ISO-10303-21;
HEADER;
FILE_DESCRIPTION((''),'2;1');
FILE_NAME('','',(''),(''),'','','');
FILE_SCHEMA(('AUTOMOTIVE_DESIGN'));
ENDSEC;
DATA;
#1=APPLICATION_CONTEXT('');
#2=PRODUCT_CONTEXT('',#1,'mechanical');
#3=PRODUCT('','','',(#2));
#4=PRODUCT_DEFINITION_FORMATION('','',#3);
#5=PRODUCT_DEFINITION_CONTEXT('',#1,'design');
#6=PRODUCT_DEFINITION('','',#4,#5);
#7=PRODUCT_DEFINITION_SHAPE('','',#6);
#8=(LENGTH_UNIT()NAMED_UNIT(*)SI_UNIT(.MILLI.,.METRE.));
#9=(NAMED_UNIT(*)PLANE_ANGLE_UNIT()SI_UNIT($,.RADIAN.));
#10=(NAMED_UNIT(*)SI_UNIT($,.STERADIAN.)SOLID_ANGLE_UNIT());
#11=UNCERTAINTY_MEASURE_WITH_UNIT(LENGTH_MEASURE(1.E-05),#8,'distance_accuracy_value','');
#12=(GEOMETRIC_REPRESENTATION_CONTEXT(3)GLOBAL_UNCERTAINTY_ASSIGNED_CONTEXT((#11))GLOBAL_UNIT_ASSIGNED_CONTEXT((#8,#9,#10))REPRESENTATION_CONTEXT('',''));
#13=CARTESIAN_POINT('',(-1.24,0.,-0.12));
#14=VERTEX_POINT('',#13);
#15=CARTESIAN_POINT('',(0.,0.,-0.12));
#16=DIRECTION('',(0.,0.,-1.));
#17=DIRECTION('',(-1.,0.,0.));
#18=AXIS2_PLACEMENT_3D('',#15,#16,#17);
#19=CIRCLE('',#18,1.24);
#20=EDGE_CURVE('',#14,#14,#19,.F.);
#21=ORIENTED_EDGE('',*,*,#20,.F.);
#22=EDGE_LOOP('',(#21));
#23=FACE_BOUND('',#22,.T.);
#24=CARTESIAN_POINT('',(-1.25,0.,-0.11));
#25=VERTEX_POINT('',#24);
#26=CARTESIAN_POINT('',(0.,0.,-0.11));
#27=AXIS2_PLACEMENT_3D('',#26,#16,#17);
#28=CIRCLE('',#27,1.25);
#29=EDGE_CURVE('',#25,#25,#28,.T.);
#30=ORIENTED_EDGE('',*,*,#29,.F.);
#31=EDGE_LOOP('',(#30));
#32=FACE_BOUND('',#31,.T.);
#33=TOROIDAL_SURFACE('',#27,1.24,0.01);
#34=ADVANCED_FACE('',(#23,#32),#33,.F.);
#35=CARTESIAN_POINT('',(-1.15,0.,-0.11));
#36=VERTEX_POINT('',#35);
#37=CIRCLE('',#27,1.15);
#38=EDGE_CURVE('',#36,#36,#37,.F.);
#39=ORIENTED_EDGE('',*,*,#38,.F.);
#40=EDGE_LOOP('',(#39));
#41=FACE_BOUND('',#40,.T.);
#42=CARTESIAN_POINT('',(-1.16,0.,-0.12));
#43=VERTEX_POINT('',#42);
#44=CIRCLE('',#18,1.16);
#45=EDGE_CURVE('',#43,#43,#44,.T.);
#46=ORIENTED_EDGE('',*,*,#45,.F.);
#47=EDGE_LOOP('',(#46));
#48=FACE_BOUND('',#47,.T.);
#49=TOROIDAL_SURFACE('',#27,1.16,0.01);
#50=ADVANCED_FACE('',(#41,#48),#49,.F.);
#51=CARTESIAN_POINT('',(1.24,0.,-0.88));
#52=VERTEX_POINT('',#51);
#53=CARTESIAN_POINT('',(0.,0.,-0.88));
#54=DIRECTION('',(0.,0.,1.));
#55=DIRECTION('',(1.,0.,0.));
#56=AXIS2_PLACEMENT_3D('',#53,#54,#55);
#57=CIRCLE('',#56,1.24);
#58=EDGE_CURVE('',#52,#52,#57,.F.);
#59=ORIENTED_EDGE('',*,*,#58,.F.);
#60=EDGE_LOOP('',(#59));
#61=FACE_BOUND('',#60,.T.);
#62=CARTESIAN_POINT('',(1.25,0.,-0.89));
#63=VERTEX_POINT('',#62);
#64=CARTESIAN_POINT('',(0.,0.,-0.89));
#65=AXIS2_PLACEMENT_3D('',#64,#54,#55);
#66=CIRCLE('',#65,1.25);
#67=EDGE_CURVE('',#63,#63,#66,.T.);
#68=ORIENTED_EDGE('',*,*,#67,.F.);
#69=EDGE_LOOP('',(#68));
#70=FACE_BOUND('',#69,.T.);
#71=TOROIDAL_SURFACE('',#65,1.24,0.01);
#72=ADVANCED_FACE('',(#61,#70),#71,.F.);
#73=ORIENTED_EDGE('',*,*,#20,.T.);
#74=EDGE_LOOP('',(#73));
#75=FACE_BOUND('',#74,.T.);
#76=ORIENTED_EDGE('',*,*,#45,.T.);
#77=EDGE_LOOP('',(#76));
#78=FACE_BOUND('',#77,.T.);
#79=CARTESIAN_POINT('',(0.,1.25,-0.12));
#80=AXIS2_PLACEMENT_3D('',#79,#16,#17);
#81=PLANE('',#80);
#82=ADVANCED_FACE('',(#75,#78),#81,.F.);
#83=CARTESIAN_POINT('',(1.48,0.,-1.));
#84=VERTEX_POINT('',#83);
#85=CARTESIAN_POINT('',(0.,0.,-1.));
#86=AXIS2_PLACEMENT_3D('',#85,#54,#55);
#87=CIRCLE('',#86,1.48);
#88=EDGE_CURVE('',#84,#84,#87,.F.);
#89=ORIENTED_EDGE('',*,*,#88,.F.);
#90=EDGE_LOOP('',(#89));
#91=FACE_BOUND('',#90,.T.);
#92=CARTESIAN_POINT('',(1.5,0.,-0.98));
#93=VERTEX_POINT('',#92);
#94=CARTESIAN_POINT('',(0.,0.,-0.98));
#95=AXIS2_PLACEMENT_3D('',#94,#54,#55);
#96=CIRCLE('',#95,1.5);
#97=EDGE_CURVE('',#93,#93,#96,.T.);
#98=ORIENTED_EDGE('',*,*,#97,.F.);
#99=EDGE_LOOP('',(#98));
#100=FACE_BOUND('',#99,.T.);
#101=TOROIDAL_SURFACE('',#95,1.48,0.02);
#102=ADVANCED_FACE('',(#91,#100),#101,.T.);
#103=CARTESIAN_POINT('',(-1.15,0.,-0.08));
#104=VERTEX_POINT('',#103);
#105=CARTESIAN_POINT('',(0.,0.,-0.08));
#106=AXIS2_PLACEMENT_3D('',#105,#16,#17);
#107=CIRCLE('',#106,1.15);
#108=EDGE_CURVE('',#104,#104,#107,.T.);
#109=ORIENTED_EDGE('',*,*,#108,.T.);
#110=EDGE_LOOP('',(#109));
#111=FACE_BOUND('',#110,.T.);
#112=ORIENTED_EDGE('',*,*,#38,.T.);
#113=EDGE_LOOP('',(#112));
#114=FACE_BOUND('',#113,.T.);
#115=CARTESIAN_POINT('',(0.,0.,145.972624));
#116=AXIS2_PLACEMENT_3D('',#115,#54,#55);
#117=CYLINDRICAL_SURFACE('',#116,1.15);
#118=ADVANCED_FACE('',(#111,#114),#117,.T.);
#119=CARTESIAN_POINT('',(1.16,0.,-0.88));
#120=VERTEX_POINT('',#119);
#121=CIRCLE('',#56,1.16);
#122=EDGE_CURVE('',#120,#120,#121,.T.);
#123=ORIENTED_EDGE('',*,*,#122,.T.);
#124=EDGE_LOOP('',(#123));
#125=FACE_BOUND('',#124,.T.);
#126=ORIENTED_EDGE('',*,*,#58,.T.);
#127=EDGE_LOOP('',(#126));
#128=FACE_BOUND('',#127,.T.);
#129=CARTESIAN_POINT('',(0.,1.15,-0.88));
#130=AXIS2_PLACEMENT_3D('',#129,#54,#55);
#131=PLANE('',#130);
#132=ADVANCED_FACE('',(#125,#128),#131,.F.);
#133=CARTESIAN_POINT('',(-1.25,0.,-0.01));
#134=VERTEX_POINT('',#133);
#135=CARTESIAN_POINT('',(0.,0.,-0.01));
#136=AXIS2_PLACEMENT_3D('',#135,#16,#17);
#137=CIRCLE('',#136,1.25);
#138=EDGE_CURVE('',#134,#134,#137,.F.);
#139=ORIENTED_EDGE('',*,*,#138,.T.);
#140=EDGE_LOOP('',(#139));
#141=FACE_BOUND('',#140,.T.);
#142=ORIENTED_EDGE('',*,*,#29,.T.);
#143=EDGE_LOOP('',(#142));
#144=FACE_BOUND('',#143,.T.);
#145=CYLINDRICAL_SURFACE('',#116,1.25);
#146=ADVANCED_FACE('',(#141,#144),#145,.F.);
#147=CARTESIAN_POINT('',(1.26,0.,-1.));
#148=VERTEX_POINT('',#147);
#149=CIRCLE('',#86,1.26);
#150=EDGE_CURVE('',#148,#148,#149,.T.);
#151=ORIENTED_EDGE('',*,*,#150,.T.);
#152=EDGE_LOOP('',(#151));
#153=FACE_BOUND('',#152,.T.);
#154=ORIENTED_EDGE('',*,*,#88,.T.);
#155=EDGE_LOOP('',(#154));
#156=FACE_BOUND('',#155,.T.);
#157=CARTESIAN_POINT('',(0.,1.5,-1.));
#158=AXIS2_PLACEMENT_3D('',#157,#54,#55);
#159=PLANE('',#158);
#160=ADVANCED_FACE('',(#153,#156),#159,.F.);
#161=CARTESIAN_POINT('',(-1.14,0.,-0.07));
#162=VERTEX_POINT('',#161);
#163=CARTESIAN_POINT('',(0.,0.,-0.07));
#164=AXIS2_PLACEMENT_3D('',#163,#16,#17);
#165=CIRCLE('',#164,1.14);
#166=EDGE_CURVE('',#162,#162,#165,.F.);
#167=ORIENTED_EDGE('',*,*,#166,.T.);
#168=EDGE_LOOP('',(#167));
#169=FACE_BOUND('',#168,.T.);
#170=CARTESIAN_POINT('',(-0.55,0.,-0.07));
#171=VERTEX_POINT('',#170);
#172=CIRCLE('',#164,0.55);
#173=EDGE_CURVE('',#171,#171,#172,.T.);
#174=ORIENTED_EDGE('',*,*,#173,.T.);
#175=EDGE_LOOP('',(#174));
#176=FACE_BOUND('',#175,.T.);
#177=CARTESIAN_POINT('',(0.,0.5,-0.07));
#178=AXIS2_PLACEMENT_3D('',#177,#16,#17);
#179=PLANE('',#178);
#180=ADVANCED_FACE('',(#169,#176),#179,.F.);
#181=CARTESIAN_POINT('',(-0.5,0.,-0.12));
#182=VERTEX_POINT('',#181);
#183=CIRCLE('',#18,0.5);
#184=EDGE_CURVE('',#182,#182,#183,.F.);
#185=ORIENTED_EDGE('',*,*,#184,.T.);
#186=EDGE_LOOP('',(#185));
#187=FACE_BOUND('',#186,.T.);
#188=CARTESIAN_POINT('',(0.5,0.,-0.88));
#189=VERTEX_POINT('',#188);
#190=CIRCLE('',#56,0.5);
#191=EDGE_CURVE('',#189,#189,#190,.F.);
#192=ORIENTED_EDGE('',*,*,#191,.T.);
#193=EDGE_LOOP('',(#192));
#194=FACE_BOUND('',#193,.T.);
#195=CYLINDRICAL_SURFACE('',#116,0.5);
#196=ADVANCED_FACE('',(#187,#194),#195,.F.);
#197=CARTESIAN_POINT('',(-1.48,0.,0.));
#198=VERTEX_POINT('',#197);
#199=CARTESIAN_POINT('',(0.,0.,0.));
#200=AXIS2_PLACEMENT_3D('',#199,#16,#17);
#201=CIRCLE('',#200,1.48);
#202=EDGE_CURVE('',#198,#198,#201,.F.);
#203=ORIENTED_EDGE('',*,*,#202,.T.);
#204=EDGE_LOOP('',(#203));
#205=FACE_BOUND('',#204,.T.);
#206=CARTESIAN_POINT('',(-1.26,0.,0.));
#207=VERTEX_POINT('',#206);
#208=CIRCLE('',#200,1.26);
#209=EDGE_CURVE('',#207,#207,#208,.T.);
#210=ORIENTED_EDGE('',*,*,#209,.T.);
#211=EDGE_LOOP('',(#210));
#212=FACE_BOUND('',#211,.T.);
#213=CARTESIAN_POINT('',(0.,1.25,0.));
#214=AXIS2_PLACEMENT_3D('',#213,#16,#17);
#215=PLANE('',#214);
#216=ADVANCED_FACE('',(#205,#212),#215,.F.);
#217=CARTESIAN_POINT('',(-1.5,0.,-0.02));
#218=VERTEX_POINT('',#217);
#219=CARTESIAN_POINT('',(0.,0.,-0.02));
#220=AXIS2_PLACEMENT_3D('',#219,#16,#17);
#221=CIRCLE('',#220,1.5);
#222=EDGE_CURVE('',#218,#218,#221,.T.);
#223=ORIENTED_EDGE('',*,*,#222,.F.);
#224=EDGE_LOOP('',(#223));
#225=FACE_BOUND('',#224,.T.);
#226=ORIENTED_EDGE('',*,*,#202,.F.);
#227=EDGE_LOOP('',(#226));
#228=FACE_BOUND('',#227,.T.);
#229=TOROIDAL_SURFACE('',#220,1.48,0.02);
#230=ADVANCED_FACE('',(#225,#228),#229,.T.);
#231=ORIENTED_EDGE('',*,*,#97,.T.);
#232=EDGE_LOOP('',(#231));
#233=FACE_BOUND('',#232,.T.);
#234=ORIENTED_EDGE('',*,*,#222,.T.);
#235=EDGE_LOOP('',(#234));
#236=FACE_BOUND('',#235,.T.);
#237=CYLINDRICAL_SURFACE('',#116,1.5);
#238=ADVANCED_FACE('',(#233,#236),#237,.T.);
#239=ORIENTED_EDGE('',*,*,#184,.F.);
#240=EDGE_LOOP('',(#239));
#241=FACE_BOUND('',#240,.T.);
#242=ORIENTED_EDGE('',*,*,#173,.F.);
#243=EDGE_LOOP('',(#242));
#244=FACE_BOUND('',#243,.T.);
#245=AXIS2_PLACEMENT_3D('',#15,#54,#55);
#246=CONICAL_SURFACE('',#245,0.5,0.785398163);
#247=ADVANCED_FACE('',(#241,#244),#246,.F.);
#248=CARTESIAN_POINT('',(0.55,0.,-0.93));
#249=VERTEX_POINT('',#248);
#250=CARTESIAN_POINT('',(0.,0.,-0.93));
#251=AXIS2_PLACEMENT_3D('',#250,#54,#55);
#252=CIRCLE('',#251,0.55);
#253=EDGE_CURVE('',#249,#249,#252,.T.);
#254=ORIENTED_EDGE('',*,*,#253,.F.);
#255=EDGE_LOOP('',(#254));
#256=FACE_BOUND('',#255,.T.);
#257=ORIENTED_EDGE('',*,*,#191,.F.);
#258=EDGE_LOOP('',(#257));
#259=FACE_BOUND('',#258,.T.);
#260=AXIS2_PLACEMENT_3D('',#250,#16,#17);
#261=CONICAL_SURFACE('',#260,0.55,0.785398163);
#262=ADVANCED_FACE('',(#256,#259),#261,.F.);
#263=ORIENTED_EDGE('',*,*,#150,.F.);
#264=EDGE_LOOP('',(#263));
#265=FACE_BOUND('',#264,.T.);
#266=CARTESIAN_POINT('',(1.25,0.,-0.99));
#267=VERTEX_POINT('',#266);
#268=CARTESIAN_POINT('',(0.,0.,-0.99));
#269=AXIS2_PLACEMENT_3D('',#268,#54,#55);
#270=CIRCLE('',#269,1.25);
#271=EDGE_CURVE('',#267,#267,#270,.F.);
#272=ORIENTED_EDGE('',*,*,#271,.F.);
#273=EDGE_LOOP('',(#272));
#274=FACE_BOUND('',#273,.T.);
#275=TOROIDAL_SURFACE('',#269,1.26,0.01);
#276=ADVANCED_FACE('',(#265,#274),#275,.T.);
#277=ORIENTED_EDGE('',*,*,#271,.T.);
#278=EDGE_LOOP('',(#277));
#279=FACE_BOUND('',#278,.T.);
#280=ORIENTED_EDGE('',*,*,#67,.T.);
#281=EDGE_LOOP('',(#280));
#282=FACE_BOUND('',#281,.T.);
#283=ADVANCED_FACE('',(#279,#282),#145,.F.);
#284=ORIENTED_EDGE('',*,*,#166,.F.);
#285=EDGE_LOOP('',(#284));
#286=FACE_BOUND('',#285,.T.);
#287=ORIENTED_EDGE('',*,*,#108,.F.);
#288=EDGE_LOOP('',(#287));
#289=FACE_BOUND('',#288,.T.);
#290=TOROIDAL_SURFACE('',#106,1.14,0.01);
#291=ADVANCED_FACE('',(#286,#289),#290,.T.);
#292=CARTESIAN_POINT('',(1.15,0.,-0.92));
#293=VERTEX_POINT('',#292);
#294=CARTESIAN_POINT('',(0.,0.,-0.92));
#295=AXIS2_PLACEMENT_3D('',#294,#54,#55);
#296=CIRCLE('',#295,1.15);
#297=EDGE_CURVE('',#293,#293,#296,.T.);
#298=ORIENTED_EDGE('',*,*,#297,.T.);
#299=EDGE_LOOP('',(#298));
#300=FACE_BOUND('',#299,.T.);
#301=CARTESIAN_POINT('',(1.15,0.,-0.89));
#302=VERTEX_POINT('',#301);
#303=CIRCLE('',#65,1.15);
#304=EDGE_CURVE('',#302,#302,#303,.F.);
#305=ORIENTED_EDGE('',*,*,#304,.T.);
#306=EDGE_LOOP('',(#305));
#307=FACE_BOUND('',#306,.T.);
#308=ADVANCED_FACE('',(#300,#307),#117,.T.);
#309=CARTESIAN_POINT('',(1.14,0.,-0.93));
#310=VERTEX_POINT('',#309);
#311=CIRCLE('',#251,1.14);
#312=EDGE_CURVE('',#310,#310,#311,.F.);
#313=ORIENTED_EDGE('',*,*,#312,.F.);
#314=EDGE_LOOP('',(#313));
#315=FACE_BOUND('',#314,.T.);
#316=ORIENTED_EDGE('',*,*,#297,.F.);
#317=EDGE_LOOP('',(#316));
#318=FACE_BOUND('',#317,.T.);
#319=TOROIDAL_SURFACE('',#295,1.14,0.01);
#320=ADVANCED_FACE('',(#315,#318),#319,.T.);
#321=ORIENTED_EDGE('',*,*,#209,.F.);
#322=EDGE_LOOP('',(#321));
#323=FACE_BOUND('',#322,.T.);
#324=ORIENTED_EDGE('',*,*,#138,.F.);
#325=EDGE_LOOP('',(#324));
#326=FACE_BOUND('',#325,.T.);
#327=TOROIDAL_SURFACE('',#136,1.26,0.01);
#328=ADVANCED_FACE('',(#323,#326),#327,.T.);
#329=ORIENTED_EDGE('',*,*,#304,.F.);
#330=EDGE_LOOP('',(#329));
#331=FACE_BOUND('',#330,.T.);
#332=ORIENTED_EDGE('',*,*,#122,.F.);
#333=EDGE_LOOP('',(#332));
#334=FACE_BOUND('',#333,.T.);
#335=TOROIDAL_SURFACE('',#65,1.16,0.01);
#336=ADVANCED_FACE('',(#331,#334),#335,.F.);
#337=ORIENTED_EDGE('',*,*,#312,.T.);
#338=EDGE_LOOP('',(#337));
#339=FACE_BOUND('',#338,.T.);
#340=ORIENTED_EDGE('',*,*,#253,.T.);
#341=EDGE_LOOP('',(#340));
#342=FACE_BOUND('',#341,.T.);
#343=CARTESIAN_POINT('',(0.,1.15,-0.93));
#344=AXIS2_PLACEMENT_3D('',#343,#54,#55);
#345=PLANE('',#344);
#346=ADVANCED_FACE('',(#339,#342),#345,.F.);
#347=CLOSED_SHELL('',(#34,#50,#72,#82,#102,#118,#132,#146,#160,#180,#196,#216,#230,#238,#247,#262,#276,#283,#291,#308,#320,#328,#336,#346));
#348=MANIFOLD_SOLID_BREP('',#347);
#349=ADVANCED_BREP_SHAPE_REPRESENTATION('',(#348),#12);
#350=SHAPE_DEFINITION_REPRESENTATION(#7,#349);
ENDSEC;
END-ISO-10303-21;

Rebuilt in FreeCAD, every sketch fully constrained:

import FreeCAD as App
import Part
import Sketcher
from FreeCAD import Vector


def edges_at(feature, points):
    """Names of the edges that pass closest to the given points."""
    edges = feature.Shape.Edges
    near = lambda p: min(range(len(edges)), key=lambda i: edges[i].distToShape(Part.Vertex(*p))[0])
    return sorted({f"Edge{near(p) + 1}" for p in points})

doc = App.newDocument("Part")
body = doc.addObject("PartDesign::Body", "Body")

# Sketch on YZ plane
sketch1 = doc.addObject("Sketcher::SketchObject", "Sketch")
body.addObject(sketch1)
sketch1.AttachmentSupport = (doc.YZ_Plane, [""])
sketch1.MapMode = "FlatFace"
sketch1.addGeometry(Part.LineSegment(Vector(1.15, -0.07, 0), Vector(0.5, -0.07, 0)), False)
sketch1.addGeometry(Part.LineSegment(Vector(0.5, -0.07, 0), Vector(0.5, -0.93, 0)), False)
sketch1.addGeometry(Part.LineSegment(Vector(0.5, -0.93, 0), Vector(1.15, -0.93, 0)), False)
sketch1.addGeometry(Part.LineSegment(Vector(1.15, -0.93, 0), Vector(1.15, -0.88, 0)), False)
sketch1.addGeometry(Part.LineSegment(Vector(1.15, -0.88, 0), Vector(1.25, -0.88, 0)), False)
sketch1.addGeometry(Part.LineSegment(Vector(1.25, -0.88, 0), Vector(1.25, -1, 0)), False)
sketch1.addGeometry(Part.LineSegment(Vector(1.25, -1, 0), Vector(1.5, -1, 0)), False)
sketch1.addGeometry(Part.LineSegment(Vector(1.5, -1, 0), Vector(1.5, 0, 0)), False)
sketch1.addGeometry(Part.LineSegment(Vector(1.5, 0, 0), Vector(1.25, 0, 0)), False)
sketch1.addGeometry(Part.LineSegment(Vector(1.25, 0, 0), Vector(1.25, -0.12, 0)), False)
sketch1.addGeometry(Part.LineSegment(Vector(1.25, -0.12, 0), Vector(1.15, -0.12, 0)), False)
sketch1.addGeometry(Part.LineSegment(Vector(1.15, -0.12, 0), Vector(1.15, -0.07, 0)), False)
sketch1.addConstraint(Sketcher.Constraint("Coincident", 0, 2, 1, 1))
sketch1.addConstraint(Sketcher.Constraint("Coincident", 1, 2, 2, 1))
sketch1.addConstraint(Sketcher.Constraint("Coincident", 2, 2, 3, 1))
sketch1.addConstraint(Sketcher.Constraint("Coincident", 3, 2, 4, 1))
sketch1.addConstraint(Sketcher.Constraint("Coincident", 4, 2, 5, 1))
sketch1.addConstraint(Sketcher.Constraint("Coincident", 5, 2, 6, 1))
sketch1.addConstraint(Sketcher.Constraint("Coincident", 6, 2, 7, 1))
sketch1.addConstraint(Sketcher.Constraint("Coincident", 7, 2, 8, 1))
sketch1.addConstraint(Sketcher.Constraint("Coincident", 8, 2, 9, 1))
sketch1.addConstraint(Sketcher.Constraint("Coincident", 9, 2, 10, 1))
sketch1.addConstraint(Sketcher.Constraint("Coincident", 10, 2, 11, 1))
sketch1.addConstraint(Sketcher.Constraint("Coincident", 11, 2, 0, 1))
sketch1.addConstraint(Sketcher.Constraint("Horizontal", 0))
sketch1.addConstraint(Sketcher.Constraint("Vertical", 1))
sketch1.addConstraint(Sketcher.Constraint("Horizontal", 2))
sketch1.addConstraint(Sketcher.Constraint("Vertical", 3))
sketch1.addConstraint(Sketcher.Constraint("Horizontal", 4))
sketch1.addConstraint(Sketcher.Constraint("Vertical", 5))
sketch1.addConstraint(Sketcher.Constraint("Horizontal", 6))
sketch1.addConstraint(Sketcher.Constraint("Vertical", 7))
sketch1.addConstraint(Sketcher.Constraint("Horizontal", 8))
sketch1.addConstraint(Sketcher.Constraint("Vertical", 9))
sketch1.addConstraint(Sketcher.Constraint("Horizontal", 10))
sketch1.addConstraint(Sketcher.Constraint("Vertical", 11))
sketch1.addConstraint(Sketcher.Constraint("PointOnObject", 7, 2, -1))
sketch1.addConstraint(Sketcher.Constraint("Vertical", 5, 2, 8, 2))
sketch1.addConstraint(Sketcher.Constraint("Vertical", 3, 2, 10, 2))
sketch1.addConstraint(Sketcher.Constraint("Equal", 5, 9))
sketch1.addConstraint(Sketcher.Constraint("Equal", 3, 11))
sketch1.addConstraint(Sketcher.Constraint("DistanceY", 7, 1, 7, 2, 1.0))
sketch1.addConstraint(Sketcher.Constraint("DistanceX", 4, 1, 4, 2, 0.1))
sketch1.addConstraint(Sketcher.Constraint("DistanceX", 1, 2, 6, 2, 1.0))
sketch1.addConstraint(Sketcher.Constraint("DistanceX", 0, 2, 0, 1, 0.65))
sketch1.addConstraint(Sketcher.Constraint("DistanceY", 1, 2, 1, 1, 0.86))
sketch1.addConstraint(Sketcher.Constraint("DistanceY", 3, 1, 3, 2, 0.05))
sketch1.addConstraint(Sketcher.Constraint("DistanceX", -1, 1, 0, 2, 0.5))
revolution = doc.addObject("PartDesign::Revolution", "Revolution")
body.addObject(revolution)
revolution.Profile = sketch1
revolution.ReferenceAxis = (sketch1, ["V_Axis"])
revolution.Angle = 360
doc.recompute()

fillet = doc.addObject("PartDesign::Fillet", "Fillet")
body.addObject(fillet)
fillet.Base = (revolution, edges_at(revolution, [
    (-1.25, 0, -1),
    (-1.25, 0, 0),
    (-1.25, 0, -0.12),
    (-1.15, 0, -0.12),
    (-1.15, 0, -0.07),
    (-1.15, 0, -0.93),
    (-1.15, 0, -0.88),
    (-1.25, 0, -0.88),
]))
fillet.Radius = 0.01
doc.recompute()

chamfer = doc.addObject("PartDesign::Chamfer", "Chamfer")
body.addObject(chamfer)
chamfer.Base = (fillet, edges_at(fillet, [(-0.5, 0, -0.07), (-0.5, 0, -0.93)]))
chamfer.Size = 0.05
doc.recompute()

fillet2 = doc.addObject("PartDesign::Fillet", "Fillet001")
body.addObject(fillet2)
fillet2.Base = (chamfer, edges_at(chamfer, [(-1.5, 0, -1), (-1.5, 0, 0)]))
fillet2.Radius = 0.02

doc.recompute()
